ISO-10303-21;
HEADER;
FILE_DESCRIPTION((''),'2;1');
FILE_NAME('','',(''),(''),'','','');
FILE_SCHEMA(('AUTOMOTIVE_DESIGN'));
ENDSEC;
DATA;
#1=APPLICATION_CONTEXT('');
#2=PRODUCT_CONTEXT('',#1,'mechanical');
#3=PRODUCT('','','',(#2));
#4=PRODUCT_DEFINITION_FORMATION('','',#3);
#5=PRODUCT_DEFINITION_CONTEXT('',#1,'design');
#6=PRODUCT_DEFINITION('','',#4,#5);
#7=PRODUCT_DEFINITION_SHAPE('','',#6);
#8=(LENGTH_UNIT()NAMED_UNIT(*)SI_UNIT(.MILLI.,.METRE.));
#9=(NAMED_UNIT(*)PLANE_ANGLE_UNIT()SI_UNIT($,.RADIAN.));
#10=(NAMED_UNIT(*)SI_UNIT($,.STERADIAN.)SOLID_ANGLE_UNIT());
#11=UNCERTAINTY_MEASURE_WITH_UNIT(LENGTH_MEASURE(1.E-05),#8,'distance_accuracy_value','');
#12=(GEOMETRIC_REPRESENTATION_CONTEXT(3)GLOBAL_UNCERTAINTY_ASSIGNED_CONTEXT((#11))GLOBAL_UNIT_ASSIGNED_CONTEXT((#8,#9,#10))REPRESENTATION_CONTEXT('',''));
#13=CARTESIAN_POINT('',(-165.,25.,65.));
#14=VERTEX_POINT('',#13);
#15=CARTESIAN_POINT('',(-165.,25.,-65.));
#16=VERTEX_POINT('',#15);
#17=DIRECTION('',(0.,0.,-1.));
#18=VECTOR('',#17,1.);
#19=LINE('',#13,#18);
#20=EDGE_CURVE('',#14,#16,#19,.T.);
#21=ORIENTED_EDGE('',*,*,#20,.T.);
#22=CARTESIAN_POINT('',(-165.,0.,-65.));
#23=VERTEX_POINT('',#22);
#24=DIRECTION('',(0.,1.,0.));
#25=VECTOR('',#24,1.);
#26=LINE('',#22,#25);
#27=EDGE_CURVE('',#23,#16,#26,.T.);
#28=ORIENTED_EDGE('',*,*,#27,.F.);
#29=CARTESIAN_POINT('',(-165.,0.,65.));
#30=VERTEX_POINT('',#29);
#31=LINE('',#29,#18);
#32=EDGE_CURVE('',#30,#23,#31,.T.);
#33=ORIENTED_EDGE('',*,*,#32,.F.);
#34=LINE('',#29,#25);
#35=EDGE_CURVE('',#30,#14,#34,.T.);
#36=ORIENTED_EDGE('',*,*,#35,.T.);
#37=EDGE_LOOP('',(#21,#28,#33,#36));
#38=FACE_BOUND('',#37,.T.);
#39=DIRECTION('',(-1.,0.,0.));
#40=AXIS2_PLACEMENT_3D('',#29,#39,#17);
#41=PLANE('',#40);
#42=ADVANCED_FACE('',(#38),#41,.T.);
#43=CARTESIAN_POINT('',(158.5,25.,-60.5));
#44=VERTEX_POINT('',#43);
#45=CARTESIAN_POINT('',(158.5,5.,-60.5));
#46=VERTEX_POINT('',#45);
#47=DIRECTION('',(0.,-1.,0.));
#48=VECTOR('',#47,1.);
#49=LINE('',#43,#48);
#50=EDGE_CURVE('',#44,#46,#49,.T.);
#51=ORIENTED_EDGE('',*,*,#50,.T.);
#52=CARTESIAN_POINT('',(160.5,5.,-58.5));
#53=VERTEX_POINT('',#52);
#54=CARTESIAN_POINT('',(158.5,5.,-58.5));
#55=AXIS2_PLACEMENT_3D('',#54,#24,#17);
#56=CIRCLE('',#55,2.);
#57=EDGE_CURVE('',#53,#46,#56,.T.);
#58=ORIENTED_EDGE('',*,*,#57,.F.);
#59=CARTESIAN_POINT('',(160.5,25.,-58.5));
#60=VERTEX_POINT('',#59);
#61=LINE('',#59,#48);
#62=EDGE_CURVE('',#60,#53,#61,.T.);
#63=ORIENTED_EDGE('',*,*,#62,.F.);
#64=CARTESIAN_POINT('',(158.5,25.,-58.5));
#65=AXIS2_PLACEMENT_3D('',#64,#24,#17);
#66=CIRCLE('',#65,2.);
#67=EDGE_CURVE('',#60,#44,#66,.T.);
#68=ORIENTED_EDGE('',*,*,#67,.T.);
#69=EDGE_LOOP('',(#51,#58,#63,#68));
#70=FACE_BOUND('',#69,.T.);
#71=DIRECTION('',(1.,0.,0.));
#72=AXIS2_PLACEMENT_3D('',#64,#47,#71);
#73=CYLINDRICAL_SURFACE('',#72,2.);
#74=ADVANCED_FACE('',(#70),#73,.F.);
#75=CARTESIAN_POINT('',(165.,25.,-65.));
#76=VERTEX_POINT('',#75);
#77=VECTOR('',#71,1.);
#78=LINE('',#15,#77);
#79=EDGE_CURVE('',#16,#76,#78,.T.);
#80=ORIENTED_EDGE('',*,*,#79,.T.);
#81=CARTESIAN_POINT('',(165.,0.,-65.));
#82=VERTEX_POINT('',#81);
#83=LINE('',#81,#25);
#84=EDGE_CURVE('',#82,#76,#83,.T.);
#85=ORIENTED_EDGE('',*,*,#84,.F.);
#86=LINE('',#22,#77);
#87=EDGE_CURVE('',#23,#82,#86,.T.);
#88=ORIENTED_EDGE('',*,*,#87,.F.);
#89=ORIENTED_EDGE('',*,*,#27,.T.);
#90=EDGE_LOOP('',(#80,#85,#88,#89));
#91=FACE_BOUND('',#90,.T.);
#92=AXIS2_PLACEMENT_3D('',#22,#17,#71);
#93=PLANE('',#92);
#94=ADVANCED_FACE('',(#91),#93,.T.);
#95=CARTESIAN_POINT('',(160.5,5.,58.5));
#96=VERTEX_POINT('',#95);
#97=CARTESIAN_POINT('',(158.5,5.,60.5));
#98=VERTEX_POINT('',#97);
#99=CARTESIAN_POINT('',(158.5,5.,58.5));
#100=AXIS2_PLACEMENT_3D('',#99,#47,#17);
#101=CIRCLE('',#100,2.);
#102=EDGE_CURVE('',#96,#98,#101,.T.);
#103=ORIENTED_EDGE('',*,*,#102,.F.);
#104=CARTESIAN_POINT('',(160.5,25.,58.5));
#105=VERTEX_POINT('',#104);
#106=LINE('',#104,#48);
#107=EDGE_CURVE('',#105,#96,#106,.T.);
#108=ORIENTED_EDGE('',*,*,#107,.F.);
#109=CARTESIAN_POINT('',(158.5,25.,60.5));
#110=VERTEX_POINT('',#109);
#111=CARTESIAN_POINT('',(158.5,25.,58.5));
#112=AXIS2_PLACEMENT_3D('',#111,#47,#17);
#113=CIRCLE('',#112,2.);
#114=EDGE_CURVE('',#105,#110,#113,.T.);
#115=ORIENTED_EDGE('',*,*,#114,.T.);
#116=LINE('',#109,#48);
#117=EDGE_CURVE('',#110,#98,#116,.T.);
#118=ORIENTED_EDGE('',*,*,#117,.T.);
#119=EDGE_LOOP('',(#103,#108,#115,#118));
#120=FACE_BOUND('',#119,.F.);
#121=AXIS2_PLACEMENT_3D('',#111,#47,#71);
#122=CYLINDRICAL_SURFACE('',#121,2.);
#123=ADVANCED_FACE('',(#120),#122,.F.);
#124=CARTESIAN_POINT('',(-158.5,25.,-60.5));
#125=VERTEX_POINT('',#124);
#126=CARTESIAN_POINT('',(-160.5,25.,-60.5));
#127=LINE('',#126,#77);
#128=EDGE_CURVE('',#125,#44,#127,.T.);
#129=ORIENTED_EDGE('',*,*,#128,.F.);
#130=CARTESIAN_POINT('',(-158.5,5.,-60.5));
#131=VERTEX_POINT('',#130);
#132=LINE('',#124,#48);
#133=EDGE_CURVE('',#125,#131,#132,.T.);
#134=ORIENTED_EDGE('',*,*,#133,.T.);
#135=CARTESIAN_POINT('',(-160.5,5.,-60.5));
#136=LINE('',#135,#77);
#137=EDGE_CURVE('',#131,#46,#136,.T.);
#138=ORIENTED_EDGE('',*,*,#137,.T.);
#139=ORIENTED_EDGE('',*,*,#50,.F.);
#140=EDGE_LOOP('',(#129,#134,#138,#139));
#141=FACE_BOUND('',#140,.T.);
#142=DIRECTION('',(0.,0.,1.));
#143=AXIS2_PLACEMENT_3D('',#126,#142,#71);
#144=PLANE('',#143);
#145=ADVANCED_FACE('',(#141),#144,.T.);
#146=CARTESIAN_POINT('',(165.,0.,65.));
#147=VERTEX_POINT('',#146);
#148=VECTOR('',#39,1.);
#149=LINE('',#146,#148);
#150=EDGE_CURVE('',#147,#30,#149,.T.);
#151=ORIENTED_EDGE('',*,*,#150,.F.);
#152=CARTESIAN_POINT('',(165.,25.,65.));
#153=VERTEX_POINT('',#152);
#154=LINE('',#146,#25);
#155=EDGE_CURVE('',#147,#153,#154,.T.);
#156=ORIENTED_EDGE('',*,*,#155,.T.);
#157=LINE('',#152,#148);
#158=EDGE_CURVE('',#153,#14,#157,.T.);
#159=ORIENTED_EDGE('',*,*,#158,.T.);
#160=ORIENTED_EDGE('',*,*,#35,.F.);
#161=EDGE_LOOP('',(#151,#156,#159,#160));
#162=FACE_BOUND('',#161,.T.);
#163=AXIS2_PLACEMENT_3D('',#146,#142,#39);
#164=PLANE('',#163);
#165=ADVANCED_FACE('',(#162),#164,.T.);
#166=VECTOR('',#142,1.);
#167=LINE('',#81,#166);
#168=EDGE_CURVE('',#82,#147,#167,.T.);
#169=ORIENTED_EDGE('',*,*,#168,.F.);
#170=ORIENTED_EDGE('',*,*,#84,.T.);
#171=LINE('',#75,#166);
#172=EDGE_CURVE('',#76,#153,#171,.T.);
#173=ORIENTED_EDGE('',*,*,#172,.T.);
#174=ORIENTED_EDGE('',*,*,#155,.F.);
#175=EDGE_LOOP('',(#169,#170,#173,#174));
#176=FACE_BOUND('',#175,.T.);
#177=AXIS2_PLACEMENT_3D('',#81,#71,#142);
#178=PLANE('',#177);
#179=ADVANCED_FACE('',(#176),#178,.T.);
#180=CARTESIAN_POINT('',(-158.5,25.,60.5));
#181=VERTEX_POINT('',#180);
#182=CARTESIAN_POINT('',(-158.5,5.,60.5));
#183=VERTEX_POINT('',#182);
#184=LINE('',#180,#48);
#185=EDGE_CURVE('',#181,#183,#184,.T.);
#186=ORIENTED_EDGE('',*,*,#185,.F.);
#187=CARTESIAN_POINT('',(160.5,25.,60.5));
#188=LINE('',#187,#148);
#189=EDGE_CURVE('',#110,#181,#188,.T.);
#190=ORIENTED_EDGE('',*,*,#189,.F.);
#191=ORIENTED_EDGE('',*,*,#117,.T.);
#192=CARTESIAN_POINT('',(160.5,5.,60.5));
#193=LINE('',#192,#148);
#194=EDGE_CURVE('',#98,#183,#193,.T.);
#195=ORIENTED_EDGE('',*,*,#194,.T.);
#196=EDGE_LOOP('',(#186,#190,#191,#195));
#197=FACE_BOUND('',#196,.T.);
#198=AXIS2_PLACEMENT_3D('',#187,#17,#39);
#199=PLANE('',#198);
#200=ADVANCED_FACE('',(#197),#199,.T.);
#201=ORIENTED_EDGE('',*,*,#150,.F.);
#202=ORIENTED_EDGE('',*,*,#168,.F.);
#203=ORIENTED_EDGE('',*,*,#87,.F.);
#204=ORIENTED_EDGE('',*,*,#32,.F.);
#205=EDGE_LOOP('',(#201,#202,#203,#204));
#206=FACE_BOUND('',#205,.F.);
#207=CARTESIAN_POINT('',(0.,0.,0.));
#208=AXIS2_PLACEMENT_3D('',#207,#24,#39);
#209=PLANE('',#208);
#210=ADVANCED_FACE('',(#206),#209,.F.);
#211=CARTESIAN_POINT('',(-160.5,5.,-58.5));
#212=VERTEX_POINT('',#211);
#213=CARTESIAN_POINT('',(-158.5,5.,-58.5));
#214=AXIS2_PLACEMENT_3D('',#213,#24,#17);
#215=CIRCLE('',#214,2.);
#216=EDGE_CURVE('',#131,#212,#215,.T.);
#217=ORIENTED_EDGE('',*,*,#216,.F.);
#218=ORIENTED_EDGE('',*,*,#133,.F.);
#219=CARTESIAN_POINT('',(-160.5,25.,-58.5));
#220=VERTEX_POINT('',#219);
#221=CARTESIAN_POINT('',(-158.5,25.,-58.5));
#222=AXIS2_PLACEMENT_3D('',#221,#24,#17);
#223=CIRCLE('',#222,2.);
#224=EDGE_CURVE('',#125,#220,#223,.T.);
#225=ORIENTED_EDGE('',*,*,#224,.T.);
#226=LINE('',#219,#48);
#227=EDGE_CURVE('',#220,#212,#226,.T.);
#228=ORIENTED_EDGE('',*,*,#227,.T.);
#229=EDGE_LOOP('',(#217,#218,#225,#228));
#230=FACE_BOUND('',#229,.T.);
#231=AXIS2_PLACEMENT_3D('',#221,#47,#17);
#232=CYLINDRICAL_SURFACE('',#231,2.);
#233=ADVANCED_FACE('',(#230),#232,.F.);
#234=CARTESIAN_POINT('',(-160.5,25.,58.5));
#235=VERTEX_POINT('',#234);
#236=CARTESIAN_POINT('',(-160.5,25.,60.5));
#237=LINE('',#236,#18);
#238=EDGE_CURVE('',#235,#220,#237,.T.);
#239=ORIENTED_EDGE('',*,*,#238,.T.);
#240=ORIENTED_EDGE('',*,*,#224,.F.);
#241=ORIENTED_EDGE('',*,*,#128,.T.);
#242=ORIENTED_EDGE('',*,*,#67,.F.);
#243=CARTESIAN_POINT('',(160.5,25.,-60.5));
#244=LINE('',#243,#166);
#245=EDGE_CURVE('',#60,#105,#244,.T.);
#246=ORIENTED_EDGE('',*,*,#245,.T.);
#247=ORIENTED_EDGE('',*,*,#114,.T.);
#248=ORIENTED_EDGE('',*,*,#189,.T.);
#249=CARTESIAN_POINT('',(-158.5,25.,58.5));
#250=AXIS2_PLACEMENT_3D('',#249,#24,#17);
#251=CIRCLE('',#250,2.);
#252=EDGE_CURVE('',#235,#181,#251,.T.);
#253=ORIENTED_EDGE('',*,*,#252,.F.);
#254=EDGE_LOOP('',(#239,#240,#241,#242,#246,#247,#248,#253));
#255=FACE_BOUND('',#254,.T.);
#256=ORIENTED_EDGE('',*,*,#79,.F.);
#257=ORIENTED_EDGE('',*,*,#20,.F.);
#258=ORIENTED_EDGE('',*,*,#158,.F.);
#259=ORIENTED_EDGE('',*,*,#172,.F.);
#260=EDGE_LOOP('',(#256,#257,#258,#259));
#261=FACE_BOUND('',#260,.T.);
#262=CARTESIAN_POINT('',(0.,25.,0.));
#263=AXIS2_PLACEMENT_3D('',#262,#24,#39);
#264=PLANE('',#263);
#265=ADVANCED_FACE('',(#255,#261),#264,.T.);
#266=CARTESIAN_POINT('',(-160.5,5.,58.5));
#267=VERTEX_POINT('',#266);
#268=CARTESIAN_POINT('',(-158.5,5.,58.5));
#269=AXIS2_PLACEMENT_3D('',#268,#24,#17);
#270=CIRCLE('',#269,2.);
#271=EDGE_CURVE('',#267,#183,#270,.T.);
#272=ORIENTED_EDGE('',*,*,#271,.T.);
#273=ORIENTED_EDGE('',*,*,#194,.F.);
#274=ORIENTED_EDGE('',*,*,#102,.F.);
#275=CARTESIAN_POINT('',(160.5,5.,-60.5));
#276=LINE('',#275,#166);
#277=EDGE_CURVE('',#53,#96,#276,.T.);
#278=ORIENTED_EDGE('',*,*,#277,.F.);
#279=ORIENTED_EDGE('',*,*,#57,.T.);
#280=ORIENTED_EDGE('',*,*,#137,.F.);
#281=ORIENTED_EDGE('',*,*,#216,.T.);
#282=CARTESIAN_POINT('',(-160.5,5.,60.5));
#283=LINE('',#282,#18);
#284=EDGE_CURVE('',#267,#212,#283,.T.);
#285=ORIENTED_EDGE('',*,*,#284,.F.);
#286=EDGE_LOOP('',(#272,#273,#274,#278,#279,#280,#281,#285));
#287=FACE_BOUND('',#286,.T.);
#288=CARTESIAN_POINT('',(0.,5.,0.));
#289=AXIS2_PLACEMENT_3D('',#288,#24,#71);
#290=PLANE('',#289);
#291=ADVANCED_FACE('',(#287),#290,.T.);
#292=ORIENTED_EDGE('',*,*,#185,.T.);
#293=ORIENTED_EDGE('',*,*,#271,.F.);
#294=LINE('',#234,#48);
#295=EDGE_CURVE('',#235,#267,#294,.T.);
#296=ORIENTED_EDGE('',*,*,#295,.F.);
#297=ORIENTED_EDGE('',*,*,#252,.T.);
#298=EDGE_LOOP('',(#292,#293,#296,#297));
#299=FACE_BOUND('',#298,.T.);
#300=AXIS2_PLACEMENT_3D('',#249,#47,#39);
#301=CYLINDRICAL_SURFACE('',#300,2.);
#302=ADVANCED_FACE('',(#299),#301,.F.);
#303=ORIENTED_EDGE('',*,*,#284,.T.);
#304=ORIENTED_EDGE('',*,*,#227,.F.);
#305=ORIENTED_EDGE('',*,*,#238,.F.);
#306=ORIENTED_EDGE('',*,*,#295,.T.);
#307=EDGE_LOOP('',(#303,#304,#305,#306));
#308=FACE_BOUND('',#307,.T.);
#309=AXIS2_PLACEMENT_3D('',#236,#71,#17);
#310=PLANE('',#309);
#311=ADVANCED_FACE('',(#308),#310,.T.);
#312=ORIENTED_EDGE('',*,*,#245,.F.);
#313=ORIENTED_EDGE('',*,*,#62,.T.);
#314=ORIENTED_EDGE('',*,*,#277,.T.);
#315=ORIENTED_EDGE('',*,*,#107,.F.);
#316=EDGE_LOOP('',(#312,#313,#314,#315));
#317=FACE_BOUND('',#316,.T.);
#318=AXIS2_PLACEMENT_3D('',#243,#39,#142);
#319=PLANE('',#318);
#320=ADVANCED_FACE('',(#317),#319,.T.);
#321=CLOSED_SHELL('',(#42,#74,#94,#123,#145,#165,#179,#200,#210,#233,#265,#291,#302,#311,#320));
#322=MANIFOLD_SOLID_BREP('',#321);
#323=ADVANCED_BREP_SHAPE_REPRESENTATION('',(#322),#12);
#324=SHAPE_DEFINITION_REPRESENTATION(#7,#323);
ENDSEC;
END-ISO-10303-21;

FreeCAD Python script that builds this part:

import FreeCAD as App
import Part
import Sketcher

V = App.Vector
Q = App.Units.Quantity


def edges_at(feature, points):
    """Names of the edges that pass closest to the given points."""
    edges = feature.Shape.Edges
    near = lambda p: min(range(len(edges)), key=lambda i: edges[i].distToShape(Part.Vertex(*p))[0])
    return sorted({f"Edge{near(p) + 1}" for p in points})


def add_polygon(sketch, points):
    """Adds a closed chain of lines whose ends are joined by coincident constraints."""
    first, n = sketch.GeometryCount, len(points)
    for a, b in zip(points, points[1:] + points[:1]):
        sketch.addGeometry(Part.LineSegment(App.Vector(*a, 0), App.Vector(*b, 0)), False)
    for i in range(n):
        sketch.addConstraint(Sketcher.Constraint("Coincident", first + i, 2, first + (i + 1) % n, 1))

doc = App.newDocument("Part")
params = doc.addObject("Spreadsheet::Sheet", "Params")
for row, (alias, value) in enumerate([
    ("sketch1_width", "330 mm"),
    ("sketch1_height", "130 mm"),
    ("pad1_length", "25 mm"),
    ("sketch2_width", "321 mm"),
    ("sketch2_height", "121 mm"),
    ("pocket1_length", "20 mm"),
    ("fillet_radius", "2 mm"),
], start=1):
    params.set(f"A{row}", alias)
    params.set(f"B{row}", "=" + value)
    params.setAlias(f"B{row}", alias)

body = doc.addObject("PartDesign::Body", "Body")

sketch1 = body.newObject("Sketcher::SketchObject", "Sketch")
sketch1.AttachmentSupport = (doc.getObject("XZ_Plane"), [""])
sketch1.MapMode = "FlatFace"
add_polygon(sketch1, [(-165, 65), (165, 65), (165, -65), (-165, -65)])
sketch1.addConstraint(Sketcher.Constraint("Horizontal", 0))
sketch1.addConstraint(Sketcher.Constraint("Vertical", 1))
sketch1.addConstraint(Sketcher.Constraint("Horizontal", 2))
sketch1.addConstraint(Sketcher.Constraint("Vertical", 3))
sketch1.addConstraint(Sketcher.Constraint("Symmetric", 0, 2, 2, 2, -1, 1))
sketch1.addConstraint(Sketcher.Constraint("DistanceX", 0, 1, 0, 2, Q("330 mm")))
sketch1.addConstraint(Sketcher.Constraint("DistanceY", 1, 2, 1, 1, Q("130 mm")))
sketch1.setExpression("Constraints[9]", "Params.sketch1_width")
sketch1.setExpression("Constraints[10]", "Params.sketch1_height")
pad1 = body.newObject("PartDesign::Pad", "Pad")
pad1.Profile = sketch1
pad1.setExpression("Length", "Params.pad1_length")
pad1.Reversed = True

sketch2 = body.newObject("Sketcher::SketchObject", "Sketch001")
sketch2.AttachmentSupport = (doc.getObject("XZ_Plane"), [""])
sketch2.MapMode = "FlatFace"
sketch2.AttachmentOffset = App.Placement(V(0, 0, -25), App.Rotation())
add_polygon(sketch2, [(-160, 60), (160, 60), (160, -60), (-160, -60)])
sketch2.addConstraint(Sketcher.Constraint("Horizontal", 0))
sketch2.addConstraint(Sketcher.Constraint("Vertical", 1))
sketch2.addConstraint(Sketcher.Constraint("Horizontal", 2))
sketch2.addConstraint(Sketcher.Constraint("Vertical", 3))
sketch2.addConstraint(Sketcher.Constraint("Symmetric", 0, 2, 2, 2, -1, 1))
sketch2.addConstraint(Sketcher.Constraint("DistanceX", 0, 1, 0, 2, Q("321 mm")))
sketch2.addConstraint(Sketcher.Constraint("DistanceY", 1, 2, 1, 1, Q("121 mm")))
sketch2.setExpression("Constraints[9]", "Params.sketch2_width")
sketch2.setExpression("Constraints[10]", "Params.sketch2_height")
pocket1 = body.newObject("PartDesign::Pocket", "Pocket")
pocket1.Profile = sketch2
pocket1.setExpression("Length", "Params.pocket1_length")
pocket1.Reversed = True
doc.recompute()

fillet = body.newObject("PartDesign::Fillet", "Fillet")
fillet.Base = (pocket1, edges_at(pocket1, [
    (-160.5, 15, -60.5),
    (160.5, 15, -60.5),
    (-160.5, 15, 60.5),
    (160.5, 15, 60.5),
]))
fillet.setExpression("Radius", "Params.fillet_radius")

doc.recompute()
